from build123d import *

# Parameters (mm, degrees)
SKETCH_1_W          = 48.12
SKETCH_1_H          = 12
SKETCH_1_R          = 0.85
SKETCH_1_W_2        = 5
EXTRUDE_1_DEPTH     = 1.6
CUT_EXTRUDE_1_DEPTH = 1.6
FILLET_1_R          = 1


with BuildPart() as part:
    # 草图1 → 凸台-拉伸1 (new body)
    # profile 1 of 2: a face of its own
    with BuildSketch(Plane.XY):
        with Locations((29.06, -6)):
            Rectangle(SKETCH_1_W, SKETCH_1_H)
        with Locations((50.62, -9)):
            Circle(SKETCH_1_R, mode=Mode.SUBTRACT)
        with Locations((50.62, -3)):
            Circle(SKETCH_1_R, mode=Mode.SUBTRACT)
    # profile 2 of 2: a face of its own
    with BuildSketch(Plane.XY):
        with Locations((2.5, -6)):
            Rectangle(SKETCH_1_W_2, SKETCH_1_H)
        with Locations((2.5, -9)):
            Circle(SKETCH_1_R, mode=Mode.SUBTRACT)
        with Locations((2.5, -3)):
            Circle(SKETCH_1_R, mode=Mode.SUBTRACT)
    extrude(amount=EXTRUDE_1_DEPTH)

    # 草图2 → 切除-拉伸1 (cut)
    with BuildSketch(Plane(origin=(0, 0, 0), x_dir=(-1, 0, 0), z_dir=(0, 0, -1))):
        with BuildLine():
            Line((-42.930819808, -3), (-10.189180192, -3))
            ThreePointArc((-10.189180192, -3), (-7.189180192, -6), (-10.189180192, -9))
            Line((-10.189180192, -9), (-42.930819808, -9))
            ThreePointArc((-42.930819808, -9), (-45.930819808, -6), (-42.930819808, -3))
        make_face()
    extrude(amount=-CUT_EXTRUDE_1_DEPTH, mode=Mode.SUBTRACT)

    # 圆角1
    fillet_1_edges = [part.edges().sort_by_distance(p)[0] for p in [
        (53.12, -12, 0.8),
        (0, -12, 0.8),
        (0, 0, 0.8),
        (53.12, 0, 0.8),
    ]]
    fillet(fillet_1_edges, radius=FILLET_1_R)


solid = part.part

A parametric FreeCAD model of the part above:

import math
import FreeCAD as App
import Part
import Sketcher
from FreeCAD import Vector
Q = App.Units.Quantity


def edges_at(feature, points):
    """Names of the edges that pass closest to the given points."""
    edges = feature.Shape.Edges
    near = lambda p: min(range(len(edges)), key=lambda i: edges[i].distToShape(Part.Vertex(*p))[0])
    return sorted({f"Edge{near(p) + 1}" for p in points})

doc = App.newDocument("Part")
body = doc.addObject("PartDesign::Body", "Body")

sketch1 = body.newObject("Sketcher::SketchObject", "Sketch")
sketch1.AttachmentSupport = (doc.getObject("XY_Plane"), [""])
sketch1.MapMode = "FlatFace"
sketch1.addGeometry([
    Part.LineSegment(Vector(53.1, -12, 0), Vector(53.1, 0, 0)),
    Part.LineSegment(Vector(53.1, 0, 0), Vector(0, 0, 0)),
    Part.LineSegment(Vector(0, 0, 0), Vector(0, -12, 0)),
    Part.LineSegment(Vector(0, -12, 0), Vector(53.1, -12, 0)),
    Part.Circle(Vector(50.6, -9, 0), Vector(0, 0, 1), 0.8),
    Part.Circle(Vector(50.6, -3, 0), Vector(0, 0, 1), 0.8),
    Part.Circle(Vector(2.5, -3, 0), Vector(0, 0, 1), 0.8),
    Part.Circle(Vector(2.5, -9, 0), Vector(0, 0, 1), 0.8),
], False)
sketch1.addConstraint([
    Sketcher.Constraint("Coincident", 0, 2, 1, 1),
    Sketcher.Constraint("Coincident", 1, 2, 2, 1),
    Sketcher.Constraint("Coincident", 2, 2, 3, 1),
    Sketcher.Constraint("Coincident", 3, 2, 0, 1),
    Sketcher.Constraint("Vertical", 0),
    Sketcher.Constraint("Horizontal", 1),
    Sketcher.Constraint("Vertical", 2),
    Sketcher.Constraint("Horizontal", 3),
    Sketcher.Constraint("Coincident", 1, 2, -1, 1),
    Sketcher.Constraint("Equal", 4, 5),
    Sketcher.Constraint("Equal", 5, 6),
    Sketcher.Constraint("Equal", 6, 7),
    Sketcher.Constraint("Horizontal", 5, 3, 6, 3),
    Sketcher.Constraint("Horizontal", 4, 3, 7, 3),
    Sketcher.Constraint("Vertical", 4, 3, 5, 3),
    Sketcher.Constraint("Vertical", 6, 3, 7, 3),
    Sketcher.Constraint("Diameter", 4, Q("1.7 mm")),
    Sketcher.Constraint("DistanceY", 0, 1, 0, 2, Q("12 mm")),
    Sketcher.Constraint("DistanceY", 4, 3, -1, 1, Q("9 mm")),
    Sketcher.Constraint("DistanceY", 5, 3, -1, 1, Q("3 mm")),
    Sketcher.Constraint("DistanceX", 1, 2, 1, 1, Q("53.12 mm")),
    Sketcher.Constraint("DistanceX", -1, 1, 6, 3, Q("2.5 mm")),
    Sketcher.Constraint("DistanceX", 5, 3, 0, 2, Q("2.5 mm")),
])
pad1 = body.newObject("PartDesign::Pad", "Pad")
pad1.Profile = sketch1
pad1.Length = 1.6

sketch2 = body.newObject("Sketcher::SketchObject", "Sketch001")
sketch2.AttachmentSupport = (doc.getObject("XY_Plane"), [""])
sketch2.MapMode = "FlatFace"
sketch2.addGeometry([
    Part.LineSegment(Vector(10.2, -3, 0), Vector(42.9, -3, 0)),
    Part.ArcOfCircle(Part.Circle(Vector(42.9, -6, 0), Vector(0, 0, 1), 3), math.radians(-90), math.radians(90)),
    Part.LineSegment(Vector(42.9, -9, 0), Vector(10.2, -9, 0)),
    Part.ArcOfCircle(Part.Circle(Vector(10.2, -6, 0), Vector(0, 0, 1), 3), math.radians(90), math.radians(270)),
], False)
sketch2.addConstraint([
    Sketcher.Constraint("Tangent", 0, 2, 1, 2),
    Sketcher.Constraint("Tangent", 1, 1, 2, 1),
    Sketcher.Constraint("Tangent", 2, 2, 3, 2),
    Sketcher.Constraint("Tangent", 3, 1, 0, 1),
    Sketcher.Constraint("Horizontal", 0),
    Sketcher.Constraint("Horizontal", 2),
    Sketcher.Constraint("Radius", 1, Q("3 mm")),
    Sketcher.Constraint("DistanceY", 1, 3, -1, 1, Q("6 mm")),
    Sketcher.Constraint("DistanceX", 0, 1, 0, 2, Q("32.74164 mm")),
    Sketcher.Constraint("DistanceX", -1, 1, 1, 3, Q("42.93082 mm")),
])
pocket1 = body.newObject("PartDesign::Pocket", "Pocket")
pocket1.Profile = sketch2
pocket1.Length = 1.6
pocket1.Reversed = True
doc.recompute()

fillet = body.newObject("PartDesign::Fillet", "Fillet")
fillet.Base = (pocket1, edges_at(pocket1, [
    (53.12, -12, 0.8),
    (0, -12, 0.8),
    (0, 0, 0.8),
    (53.12, 0, 0.8),
]))
fillet.Radius = 1

doc.recompute()
